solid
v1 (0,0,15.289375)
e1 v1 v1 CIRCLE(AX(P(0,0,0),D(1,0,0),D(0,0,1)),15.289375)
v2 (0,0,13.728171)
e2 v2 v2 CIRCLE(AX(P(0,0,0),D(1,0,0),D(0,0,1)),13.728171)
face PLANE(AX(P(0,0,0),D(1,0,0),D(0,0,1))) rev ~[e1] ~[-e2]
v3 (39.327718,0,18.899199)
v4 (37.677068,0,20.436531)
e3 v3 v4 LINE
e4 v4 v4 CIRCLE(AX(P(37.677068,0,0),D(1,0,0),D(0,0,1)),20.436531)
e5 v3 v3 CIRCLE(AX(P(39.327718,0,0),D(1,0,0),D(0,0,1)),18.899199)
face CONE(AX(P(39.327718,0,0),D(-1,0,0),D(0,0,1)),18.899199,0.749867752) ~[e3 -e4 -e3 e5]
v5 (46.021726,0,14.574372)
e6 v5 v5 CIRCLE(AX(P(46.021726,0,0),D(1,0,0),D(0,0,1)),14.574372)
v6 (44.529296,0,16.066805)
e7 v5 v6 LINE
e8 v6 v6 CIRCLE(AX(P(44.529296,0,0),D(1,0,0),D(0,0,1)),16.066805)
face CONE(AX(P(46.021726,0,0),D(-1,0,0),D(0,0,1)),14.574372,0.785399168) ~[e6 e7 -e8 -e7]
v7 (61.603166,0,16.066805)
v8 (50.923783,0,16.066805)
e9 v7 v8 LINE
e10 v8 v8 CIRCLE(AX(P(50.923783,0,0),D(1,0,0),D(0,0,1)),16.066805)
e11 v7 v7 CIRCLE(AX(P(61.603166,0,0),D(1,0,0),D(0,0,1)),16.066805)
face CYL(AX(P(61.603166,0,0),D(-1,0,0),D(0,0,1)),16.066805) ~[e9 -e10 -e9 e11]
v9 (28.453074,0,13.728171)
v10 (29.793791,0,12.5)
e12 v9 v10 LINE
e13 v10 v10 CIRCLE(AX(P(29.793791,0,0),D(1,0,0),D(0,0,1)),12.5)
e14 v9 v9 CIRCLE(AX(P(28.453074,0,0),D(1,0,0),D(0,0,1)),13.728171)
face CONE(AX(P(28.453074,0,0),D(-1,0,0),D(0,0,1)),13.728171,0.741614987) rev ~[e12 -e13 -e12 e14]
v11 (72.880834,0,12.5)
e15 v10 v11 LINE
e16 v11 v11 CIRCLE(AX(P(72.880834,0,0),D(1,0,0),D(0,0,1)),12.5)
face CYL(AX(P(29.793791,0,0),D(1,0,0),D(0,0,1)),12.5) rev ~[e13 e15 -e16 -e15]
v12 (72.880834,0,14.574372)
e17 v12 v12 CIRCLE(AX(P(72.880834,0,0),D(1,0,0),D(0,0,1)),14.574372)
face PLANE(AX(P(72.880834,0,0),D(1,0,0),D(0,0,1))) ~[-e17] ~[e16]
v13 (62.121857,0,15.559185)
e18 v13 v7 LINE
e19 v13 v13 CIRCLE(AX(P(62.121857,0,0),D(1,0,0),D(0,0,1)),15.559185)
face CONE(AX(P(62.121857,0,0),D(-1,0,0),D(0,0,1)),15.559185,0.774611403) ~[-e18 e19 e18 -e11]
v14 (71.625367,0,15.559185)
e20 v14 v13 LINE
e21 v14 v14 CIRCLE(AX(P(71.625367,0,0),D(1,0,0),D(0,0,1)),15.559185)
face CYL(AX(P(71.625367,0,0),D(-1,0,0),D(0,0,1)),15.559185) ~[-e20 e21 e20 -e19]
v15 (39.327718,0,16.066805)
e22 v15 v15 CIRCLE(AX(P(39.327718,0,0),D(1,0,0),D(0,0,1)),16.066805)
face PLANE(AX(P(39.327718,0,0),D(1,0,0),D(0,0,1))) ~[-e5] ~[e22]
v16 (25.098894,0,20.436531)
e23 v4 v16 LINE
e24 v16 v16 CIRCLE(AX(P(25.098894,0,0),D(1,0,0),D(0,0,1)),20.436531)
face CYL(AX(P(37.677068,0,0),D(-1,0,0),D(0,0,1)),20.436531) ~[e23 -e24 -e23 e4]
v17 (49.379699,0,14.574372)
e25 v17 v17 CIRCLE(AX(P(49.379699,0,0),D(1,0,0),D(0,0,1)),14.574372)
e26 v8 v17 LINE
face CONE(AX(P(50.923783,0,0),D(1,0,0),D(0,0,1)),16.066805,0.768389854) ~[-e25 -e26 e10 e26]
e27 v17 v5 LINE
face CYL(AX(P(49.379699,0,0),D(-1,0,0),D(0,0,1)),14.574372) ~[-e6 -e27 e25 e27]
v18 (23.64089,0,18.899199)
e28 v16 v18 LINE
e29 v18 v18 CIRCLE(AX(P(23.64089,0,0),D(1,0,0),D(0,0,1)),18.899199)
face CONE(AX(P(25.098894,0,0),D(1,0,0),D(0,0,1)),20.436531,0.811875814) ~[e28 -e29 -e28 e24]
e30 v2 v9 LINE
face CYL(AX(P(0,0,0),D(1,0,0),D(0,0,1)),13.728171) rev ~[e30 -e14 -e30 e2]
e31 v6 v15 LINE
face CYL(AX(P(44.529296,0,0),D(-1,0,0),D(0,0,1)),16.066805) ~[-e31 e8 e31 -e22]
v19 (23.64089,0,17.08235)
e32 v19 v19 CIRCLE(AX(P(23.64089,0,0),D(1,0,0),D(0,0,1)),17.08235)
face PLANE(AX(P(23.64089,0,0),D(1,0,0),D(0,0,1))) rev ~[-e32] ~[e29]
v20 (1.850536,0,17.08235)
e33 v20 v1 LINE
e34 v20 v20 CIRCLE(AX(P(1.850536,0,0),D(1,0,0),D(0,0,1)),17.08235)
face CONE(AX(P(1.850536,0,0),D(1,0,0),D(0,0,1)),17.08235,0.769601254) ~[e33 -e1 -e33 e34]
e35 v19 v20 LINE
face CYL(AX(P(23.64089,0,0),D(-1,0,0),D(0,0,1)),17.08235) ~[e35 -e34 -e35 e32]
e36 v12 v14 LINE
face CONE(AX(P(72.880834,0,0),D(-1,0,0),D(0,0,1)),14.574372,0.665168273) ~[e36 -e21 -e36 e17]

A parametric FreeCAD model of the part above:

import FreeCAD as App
import Part
import Sketcher
Q = App.Units.Quantity

doc = App.newDocument("Part")
params = doc.addObject("Spreadsheet::Sheet", "Params")
for row, (alias, value) in enumerate([
    ("revolution_angle", "360 deg"),
], start=1):
    params.set(f"A{row}", alias)
    params.set(f"B{row}", "=" + value)
    params.setAlias(f"B{row}", alias)

body = doc.addObject("PartDesign::Body", "Body")

# Sketch on XZ plane
sketch1 = body.newObject("Sketcher::SketchObject", "Sketch")
sketch1.AttachmentSupport = (doc.getObject("XZ_Plane"), [""])
sketch1.MapMode = "FlatFace"
sketch1.addGeometry([
    Part.LineSegment(App.Vector(29.8, 12.5, 0), App.Vector(72.9, 12.5, 0)),  # 0
    Part.LineSegment(App.Vector(72.9, 12.5, 0), App.Vector(72.9, 14.6, 0)),  # 1
    Part.LineSegment(App.Vector(72.9, 14.6, 0), App.Vector(71.6, 15.6, 0)),  # 2
    Part.LineSegment(App.Vector(71.6, 15.6, 0), App.Vector(62.1, 15.6, 0)),  # 3
    Part.LineSegment(App.Vector(62.1, 15.6, 0), App.Vector(61.6, 16.1, 0)),  # 4
    Part.LineSegment(App.Vector(61.6, 16.1, 0), App.Vector(50.9, 16.1, 0)),  # 5
    Part.LineSegment(App.Vector(50.9, 16.1, 0), App.Vector(49.4, 14.6, 0)),  # 6
    Part.LineSegment(App.Vector(49.4, 14.6, 0), App.Vector(46, 14.6, 0)),  # 7
    Part.LineSegment(App.Vector(46, 14.6, 0), App.Vector(44.5, 16.1, 0)),  # 8
    Part.LineSegment(App.Vector(44.5, 16.1, 0), App.Vector(39.3, 16.1, 0)),  # 9
    Part.LineSegment(App.Vector(39.3, 16.1, 0), App.Vector(39.3, 18.9, 0)),  # 10
    Part.LineSegment(App.Vector(39.3, 18.9, 0), App.Vector(37.7, 20.4, 0)),  # 11
    Part.LineSegment(App.Vector(37.7, 20.4, 0), App.Vector(25.1, 20.4, 0)),  # 12
    Part.LineSegment(App.Vector(25.1, 20.4, 0), App.Vector(23.6, 18.9, 0)),  # 13
    Part.LineSegment(App.Vector(23.6, 18.9, 0), App.Vector(23.6, 17.1, 0)),  # 14
    Part.LineSegment(App.Vector(23.6, 17.1, 0), App.Vector(1.9, 17.1, 0)),  # 15
    Part.LineSegment(App.Vector(1.9, 17.1, 0), App.Vector(0, 15.3, 0)),  # 16
    Part.LineSegment(App.Vector(0, 15.3, 0), App.Vector(0, 13.7, 0)),  # 17
    Part.LineSegment(App.Vector(0, 13.7, 0), App.Vector(28.5, 13.7, 0)),  # 18
    Part.LineSegment(App.Vector(28.5, 13.7, 0), App.Vector(29.8, 12.5, 0)),  # 19
], False)
sketch1.addConstraint([
    Sketcher.Constraint("Coincident", 0, 2, 1, 1),
    Sketcher.Constraint("Coincident", 1, 2, 2, 1),
    Sketcher.Constraint("Coincident", 2, 2, 3, 1),
    Sketcher.Constraint("Coincident", 3, 2, 4, 1),
    Sketcher.Constraint("Coincident", 4, 2, 5, 1),
    Sketcher.Constraint("Coincident", 5, 2, 6, 1),
    Sketcher.Constraint("Coincident", 6, 2, 7, 1),
    Sketcher.Constraint("Coincident", 7, 2, 8, 1),
    Sketcher.Constraint("Coincident", 8, 2, 9, 1),
    Sketcher.Constraint("Coincident", 9, 2, 10, 1),
    Sketcher.Constraint("Coincident", 10, 2, 11, 1),
    Sketcher.Constraint("Coincident", 11, 2, 12, 1),
    Sketcher.Constraint("Coincident", 12, 2, 13, 1),
    Sketcher.Constraint("Coincident", 13, 2, 14, 1),
    Sketcher.Constraint("Coincident", 14, 2, 15, 1),
    Sketcher.Constraint("Coincident", 15, 2, 16, 1),
    Sketcher.Constraint("Coincident", 16, 2, 17, 1),
    Sketcher.Constraint("Coincident", 17, 2, 18, 1),
    Sketcher.Constraint("Coincident", 18, 2, 19, 1),
    Sketcher.Constraint("Coincident", 19, 2, 0, 1),
    Sketcher.Constraint("Horizontal", 0),
    Sketcher.Constraint("Vertical", 1),
    Sketcher.Constraint("Horizontal", 3),
    Sketcher.Constraint("Horizontal", 5),
    Sketcher.Constraint("Horizontal", 7),
    Sketcher.Constraint("Horizontal", 9),
    Sketcher.Constraint("Vertical", 10),
    Sketcher.Constraint("Horizontal", 12),
    Sketcher.Constraint("Vertical", 14),
    Sketcher.Constraint("Horizontal", 15),
    Sketcher.Constraint("Vertical", 17),
    Sketcher.Constraint("Horizontal", 18),
    Sketcher.Constraint("PointOnObject", 16, 2, -2),
    Sketcher.Constraint("Horizontal", 1, 2, 6, 2),
    Sketcher.Constraint("Horizontal", 5, 2, 8, 2),
    Sketcher.Constraint("Horizontal", 10, 2, 13, 2),
    Sketcher.Constraint("DistanceY", -1, 1, 0, 2, Q("12.5 mm")),
    Sketcher.Constraint("DistanceX", 3, 2, 3, 1, Q("9.50351 mm")),
    Sketcher.Constraint("DistanceX", 9, 2, 9, 1, Q("5.201578 mm")),
    Sketcher.Constraint("DistanceY", 14, 2, 14, 1, Q("1.816849 mm")),
    Sketcher.Constraint("DistanceX", -1, 1, 6, 2, Q("49.379699 mm")),
    Sketcher.Constraint("DistanceY", -1, 1, 10, 2, Q("18.899199 mm")),
    Sketcher.Constraint("DistanceX", 4, 2, 2, 2, Q("10.022201 mm")),
    Sketcher.Constraint("DistanceX", 14, 2, 19, 2, Q("6.152901 mm")),
    Sketcher.Constraint("Distance", 19, Q("1.818221 mm")),
    Sketcher.Constraint("DistanceX", 0, 1, 0, 2, Q("43.087043 mm")),
    Sketcher.Constraint("DistanceX", 5, 2, 5, 1, Q("10.679383 mm")),
    Sketcher.Constraint("DistanceX", 7, 2, 7, 1, Q("3.357973 mm")),
    Sketcher.Constraint("DistanceX", 12, 2, 12, 1, Q("12.578174 mm")),
    Sketcher.Constraint("DistanceX", 15, 2, 15, 1, Q("21.790354 mm")),
    Sketcher.Constraint("DistanceX", 18, 1, 18, 2, Q("28.453074 mm")),
    Sketcher.Constraint("DistanceY", 1, 1, 1, 2, Q("2.074372 mm")),
    Sketcher.Constraint("DistanceY", 10, 1, 10, 2, Q("2.832394 mm")),
    Sketcher.Constraint("DistanceY", 17, 2, 17, 1, Q("1.561204 mm")),
    Sketcher.Constraint("DistanceY", -1, 1, 11, 2, Q("20.436531 mm")),
    Sketcher.Constraint("DistanceX", -1, 1, 13, 2, Q("23.64089 mm")),
    Sketcher.Constraint("DistanceY", 3, 2, 4, 2, Q("0.50762 mm")),
    Sketcher.Constraint("DistanceX", 5, 2, 1, 2, Q("21.957051 mm")),
    Sketcher.Constraint("DistanceX", 8, 2, 7, 2, Q("1.49243 mm")),
    Sketcher.Constraint("DistanceX", 11, 2, 10, 2, Q("1.65065 mm")),
])
revolution = body.newObject("PartDesign::Revolution", "Revolution")
revolution.Profile = sketch1
revolution.ReferenceAxis = (sketch1, ["H_Axis"])
revolution.setExpression("Angle", "Params.revolution_angle")

doc.recompute()
